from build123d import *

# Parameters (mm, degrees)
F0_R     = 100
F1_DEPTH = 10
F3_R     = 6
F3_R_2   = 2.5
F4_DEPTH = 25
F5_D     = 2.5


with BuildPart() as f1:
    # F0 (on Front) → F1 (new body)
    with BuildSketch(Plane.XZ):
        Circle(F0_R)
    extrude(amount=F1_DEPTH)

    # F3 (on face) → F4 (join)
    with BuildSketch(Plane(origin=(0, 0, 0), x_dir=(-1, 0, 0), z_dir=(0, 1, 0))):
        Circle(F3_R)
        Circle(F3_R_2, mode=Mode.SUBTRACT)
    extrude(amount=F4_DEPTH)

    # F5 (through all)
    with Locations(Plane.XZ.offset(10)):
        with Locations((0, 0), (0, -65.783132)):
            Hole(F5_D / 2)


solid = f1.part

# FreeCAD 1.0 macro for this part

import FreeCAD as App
import Part
import Sketcher
from FreeCAD import Vector
Q = App.Units.Quantity

doc = App.newDocument("Part")
body = doc.addObject("PartDesign::Body", "Body")

# Sketch on XZ plane
sketch1 = body.newObject("Sketcher::SketchObject", "Sketch")
sketch1.AttachmentSupport = (doc.getObject("XZ_Plane"), [""])
sketch1.MapMode = "FlatFace"
sketch1.addGeometry(Part.Circle(Vector(0, 0, 0), Vector(0, 0, 1), 100), False)
sketch1.addConstraint([
    Sketcher.Constraint("Coincident", 0, 3, -1, 1),
    Sketcher.Constraint("Diameter", 0, Q("200 mm")),
])
pad1 = body.newObject("PartDesign::Pad", "Pad")
pad1.Profile = sketch1
pad1.Length = 10

# Sketch on XZ plane
sketch2 = body.newObject("Sketcher::SketchObject", "Sketch001")
sketch2.AttachmentSupport = (doc.getObject("XZ_Plane"), [""])
sketch2.MapMode = "FlatFace"
sketch2.addGeometry([
    Part.Circle(Vector(0, 0, 0), Vector(0, 0, 1), 6),
    Part.Circle(Vector(0, 0, 0), Vector(0, 0, 1), 2.5),
], False)
sketch2.addConstraint([
    Sketcher.Constraint("Coincident", 0, 3, -1, 1),
    Sketcher.Constraint("Coincident", 1, 3, -1, 1),
    Sketcher.Constraint("Diameter", 0, Q("12 mm")),
    Sketcher.Constraint("Diameter", 1, Q("5 mm")),
])
pad2 = body.newObject("PartDesign::Pad", "Pad001")
pad2.Profile = sketch2
pad2.Length = 25
pad2.Reversed = True

# Sketch on XZ plane
sketch3 = body.newObject("Sketcher::SketchObject", "Sketch002")
sketch3.AttachmentSupport = (doc.getObject("XZ_Plane"), [""])
sketch3.MapMode = "FlatFace"
sketch3.AttachmentOffset = App.Placement(Vector(0, 0, 10), App.Rotation())
sketch3.addGeometry([
    Part.Circle(Vector(0, 0, 0), Vector(0, 0, 1), 1.2),
    Part.Circle(Vector(0, -65.8, 0), Vector(0, 0, 1), 1.2),
], False)
sketch3.addConstraint([
    Sketcher.Constraint("Coincident", 0, 3, -1, 1),
    Sketcher.Constraint("Equal", 0, 1),
    Sketcher.Constraint("PointOnObject", 1, 3, -2),
    Sketcher.Constraint("Diameter", 0, Q("2.5 mm")),
    Sketcher.Constraint("DistanceY", 1, 3, -1, 1, Q("65.783132 mm")),
])
doc.recompute()
hole = body.newObject("PartDesign::Hole", "Hole")
hole.Profile = sketch3
hole.ThreadType = "None"
hole.Diameter = 2.5
hole.DepthType = "ThroughAll"

doc.recompute()
